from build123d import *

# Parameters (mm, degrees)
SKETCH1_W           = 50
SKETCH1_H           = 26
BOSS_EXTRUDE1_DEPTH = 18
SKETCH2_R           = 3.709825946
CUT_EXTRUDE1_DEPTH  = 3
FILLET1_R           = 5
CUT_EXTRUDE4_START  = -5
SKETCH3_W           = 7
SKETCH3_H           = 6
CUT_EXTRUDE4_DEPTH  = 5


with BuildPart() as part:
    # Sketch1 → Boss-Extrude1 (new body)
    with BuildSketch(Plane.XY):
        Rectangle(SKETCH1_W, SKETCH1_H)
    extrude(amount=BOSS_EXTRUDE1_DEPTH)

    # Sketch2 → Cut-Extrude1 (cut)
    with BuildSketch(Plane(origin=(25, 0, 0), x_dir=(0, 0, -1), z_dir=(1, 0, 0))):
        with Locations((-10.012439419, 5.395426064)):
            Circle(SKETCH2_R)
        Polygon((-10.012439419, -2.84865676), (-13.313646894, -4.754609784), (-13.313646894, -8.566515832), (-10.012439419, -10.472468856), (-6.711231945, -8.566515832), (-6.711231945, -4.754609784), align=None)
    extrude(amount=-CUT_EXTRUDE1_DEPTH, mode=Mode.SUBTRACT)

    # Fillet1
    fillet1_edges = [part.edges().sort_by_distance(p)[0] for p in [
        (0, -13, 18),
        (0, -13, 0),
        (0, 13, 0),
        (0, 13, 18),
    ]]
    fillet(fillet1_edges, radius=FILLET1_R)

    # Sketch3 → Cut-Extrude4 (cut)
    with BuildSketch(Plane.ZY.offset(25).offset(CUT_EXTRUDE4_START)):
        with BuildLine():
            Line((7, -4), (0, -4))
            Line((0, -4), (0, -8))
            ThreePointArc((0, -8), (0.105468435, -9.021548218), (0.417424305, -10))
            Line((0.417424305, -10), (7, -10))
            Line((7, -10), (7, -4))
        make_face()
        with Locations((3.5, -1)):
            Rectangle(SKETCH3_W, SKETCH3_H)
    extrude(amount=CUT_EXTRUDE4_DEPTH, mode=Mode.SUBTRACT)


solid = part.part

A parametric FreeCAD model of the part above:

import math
import FreeCAD as App
import Part
import Sketcher
Q = App.Units.Quantity


def edges_at(feature, points):
    """Names of the edges that pass closest to the given points."""
    edges = feature.Shape.Edges
    near = lambda p: min(range(len(edges)), key=lambda i: edges[i].distToShape(Part.Vertex(*p))[0])
    return sorted({f"Edge{near(p) + 1}" for p in points})

doc = App.newDocument("Part")
body = doc.addObject("PartDesign::Body", "Body")

sketch1 = doc.addObject("Sketcher::SketchObject", "Sketch")
body.addObject(sketch1)
sketch1.AttachmentSupport = (doc.XY_Plane, [""])
sketch1.MapMode = "FlatFace"
sketch1.addGeometry(Part.LineSegment(App.Vector(-25, 13, 0), App.Vector(-25, -13, 0)), False)
sketch1.addGeometry(Part.LineSegment(App.Vector(-25, -13, 0), App.Vector(25, -13, 0)), False)
sketch1.addGeometry(Part.LineSegment(App.Vector(25, -13, 0), App.Vector(25, 13, 0)), False)
sketch1.addGeometry(Part.LineSegment(App.Vector(25, 13, 0), App.Vector(-25, 13, 0)), False)
sketch1.addConstraint(Sketcher.Constraint("Coincident", 0, 2, 1, 1))
sketch1.addConstraint(Sketcher.Constraint("Coincident", 1, 2, 2, 1))
sketch1.addConstraint(Sketcher.Constraint("Coincident", 2, 2, 3, 1))
sketch1.addConstraint(Sketcher.Constraint("Coincident", 3, 2, 0, 1))
sketch1.addConstraint(Sketcher.Constraint("Vertical", 0))
sketch1.addConstraint(Sketcher.Constraint("Horizontal", 1))
sketch1.addConstraint(Sketcher.Constraint("Vertical", 2))
sketch1.addConstraint(Sketcher.Constraint("Horizontal", 3))
sketch1.addConstraint(Sketcher.Constraint("Symmetric", 0, 2, 2, 2, -1, 1))
sketch1.addConstraint(Sketcher.Constraint("DistanceX", 1, 1, 1, 2, 50.0))
sketch1.addConstraint(Sketcher.Constraint("DistanceY", 0, 2, 0, 1, 26.0))
pad1 = doc.addObject("PartDesign::Pad", "Pad")
body.addObject(pad1)
pad1.Profile = sketch1
pad1.Length = 18

sketch2 = doc.addObject("Sketcher::SketchObject", "Sketch001")
body.addObject(sketch2)
sketch2.AttachmentSupport = (doc.YZ_Plane, [""])
sketch2.MapMode = "FlatFace"
sketch2.AttachmentOffset = App.Placement(App.Vector(0, 0, 25), App.Rotation())
sketch2.addGeometry(Part.Circle(App.Vector(5.395426, 10.012439, 0), App.Vector(0, 0, 1), 3.709826), False)
sketch2.addGeometry(Part.LineSegment(App.Vector(-2.848657, 10.012439, 0), App.Vector(-4.75461, 13.313647, 0)), False)
sketch2.addGeometry(Part.LineSegment(App.Vector(-4.75461, 13.313647, 0), App.Vector(-8.566516, 13.313647, 0)), False)
sketch2.addGeometry(Part.LineSegment(App.Vector(-8.566516, 13.313647, 0), App.Vector(-10.472469, 10.012439, 0)), False)
sketch2.addGeometry(Part.LineSegment(App.Vector(-10.472469, 10.012439, 0), App.Vector(-8.566516, 6.711232, 0)), False)
sketch2.addGeometry(Part.LineSegment(App.Vector(-8.566516, 6.711232, 0), App.Vector(-4.75461, 6.711232, 0)), False)
sketch2.addGeometry(Part.LineSegment(App.Vector(-4.75461, 6.711232, 0), App.Vector(-2.848657, 10.012439, 0)), False)
sketch2.addConstraint(Sketcher.Constraint("Coincident", 1, 2, 2, 1))
sketch2.addConstraint(Sketcher.Constraint("Coincident", 2, 2, 3, 1))
sketch2.addConstraint(Sketcher.Constraint("Coincident", 3, 2, 4, 1))
sketch2.addConstraint(Sketcher.Constraint("Coincident", 4, 2, 5, 1))
sketch2.addConstraint(Sketcher.Constraint("Coincident", 5, 2, 6, 1))
sketch2.addConstraint(Sketcher.Constraint("Coincident", 6, 2, 1, 1))
sketch2.addConstraint(Sketcher.Constraint("Horizontal", 2))
sketch2.addConstraint(Sketcher.Constraint("Horizontal", 5))
sketch2.addConstraint(Sketcher.Constraint("Parallel", 1, 4))
sketch2.addConstraint(Sketcher.Constraint("Parallel", 3, 6))
sketch2.addConstraint(Sketcher.Constraint("Horizontal", 0, 3, 3, 2))
sketch2.addConstraint(Sketcher.Constraint("Horizontal", 3, 2, 6, 2))
sketch2.addConstraint(Sketcher.Constraint("Vertical", 2, 2, 4, 2))
sketch2.addConstraint(Sketcher.Constraint("Vertical", 1, 2, 5, 2))
sketch2.addConstraint(Sketcher.Constraint("Angle", 1, Q("120 deg")))
sketch2.addConstraint(Sketcher.Constraint("Diameter", 0, 7.419652))
sketch2.addConstraint(Sketcher.Constraint("DistanceX", 2, 2, 2, 1, 3.811906))
sketch2.addConstraint(Sketcher.Constraint("DistanceY", -1, 1, 0, 3, 10.012439))
sketch2.addConstraint(Sketcher.Constraint("DistanceX", 1, 2, -1, 1, 4.75461))
sketch2.addConstraint(Sketcher.Constraint("DistanceX", 3, 2, -1, 1, 10.472469))
sketch2.addConstraint(Sketcher.Constraint("DistanceX", 2, 2, 0, 3, 13.961942))
pocket1 = doc.addObject("PartDesign::Pocket", "Pocket")
body.addObject(pocket1)
pocket1.Profile = sketch2
pocket1.Length = 3
doc.recompute()

fillet = doc.addObject("PartDesign::Fillet", "Fillet")
body.addObject(fillet)
fillet.Base = (pocket1, edges_at(pocket1, [
    (0, -13, 18),
    (0, -13, 0),
    (0, 13, 0),
    (0, 13, 18),
]))
fillet.Radius = 5

sketch3 = doc.addObject("Sketcher::SketchObject", "Sketch002")
body.addObject(sketch3)
sketch3.AttachmentSupport = (doc.YZ_Plane, [""])
sketch3.MapMode = "FlatFace"
sketch3.AttachmentOffset = App.Placement(App.Vector(0, 0, -20), App.Rotation())
sketch3.addGeometry(Part.ArcOfCircle(Part.Circle(App.Vector(-8, 5, 0), App.Vector(0, 0, 1), 5), math.radians(-113.578179), math.radians(-90)), False)
sketch3.addGeometry(Part.LineSegment(App.Vector(-10, 0.417424, 0), App.Vector(-10, 7, 0)), False)
sketch3.addGeometry(Part.LineSegment(App.Vector(-10, 7, 0), App.Vector(2, 7, 0)), False)
sketch3.addGeometry(Part.LineSegment(App.Vector(2, 7, 0), App.Vector(2, 0, 0)), False)
sketch3.addGeometry(Part.LineSegment(App.Vector(2, 0, 0), App.Vector(-8, 0, 0)), False)
sketch3.addConstraint(Sketcher.Constraint("Coincident", 0, 1, 1, 1))
sketch3.addConstraint(Sketcher.Constraint("Coincident", 1, 2, 2, 1))
sketch3.addConstraint(Sketcher.Constraint("Coincident", 2, 2, 3, 1))
sketch3.addConstraint(Sketcher.Constraint("Coincident", 3, 2, 4, 1))
sketch3.addConstraint(Sketcher.Constraint("Tangent", 4, 2, 0, 2))
sketch3.addConstraint(Sketcher.Constraint("Vertical", 1))
sketch3.addConstraint(Sketcher.Constraint("Horizontal", 2))
sketch3.addConstraint(Sketcher.Constraint("Vertical", 3))
sketch3.addConstraint(Sketcher.Constraint("Horizontal", 4))
sketch3.addConstraint(Sketcher.Constraint("PointOnObject", 3, 2, -1))
sketch3.addConstraint(Sketcher.Constraint("Radius", 0, 5.0))
sketch3.addConstraint(Sketcher.Constraint("DistanceX", 2, 1, 2, 2, 12.0))
sketch3.addConstraint(Sketcher.Constraint("DistanceX", 4, 2, 4, 1, 10.0))
sketch3.addConstraint(Sketcher.Constraint("DistanceY", 3, 2, 3, 1, 7.0))
sketch3.addConstraint(Sketcher.Constraint("DistanceX", 0, 3, -1, 1, 8.0))
pocket2 = doc.addObject("PartDesign::Pocket", "Pocket001")
body.addObject(pocket2)
pocket2.Profile = sketch3
pocket2.Length = 5

doc.recompute()
